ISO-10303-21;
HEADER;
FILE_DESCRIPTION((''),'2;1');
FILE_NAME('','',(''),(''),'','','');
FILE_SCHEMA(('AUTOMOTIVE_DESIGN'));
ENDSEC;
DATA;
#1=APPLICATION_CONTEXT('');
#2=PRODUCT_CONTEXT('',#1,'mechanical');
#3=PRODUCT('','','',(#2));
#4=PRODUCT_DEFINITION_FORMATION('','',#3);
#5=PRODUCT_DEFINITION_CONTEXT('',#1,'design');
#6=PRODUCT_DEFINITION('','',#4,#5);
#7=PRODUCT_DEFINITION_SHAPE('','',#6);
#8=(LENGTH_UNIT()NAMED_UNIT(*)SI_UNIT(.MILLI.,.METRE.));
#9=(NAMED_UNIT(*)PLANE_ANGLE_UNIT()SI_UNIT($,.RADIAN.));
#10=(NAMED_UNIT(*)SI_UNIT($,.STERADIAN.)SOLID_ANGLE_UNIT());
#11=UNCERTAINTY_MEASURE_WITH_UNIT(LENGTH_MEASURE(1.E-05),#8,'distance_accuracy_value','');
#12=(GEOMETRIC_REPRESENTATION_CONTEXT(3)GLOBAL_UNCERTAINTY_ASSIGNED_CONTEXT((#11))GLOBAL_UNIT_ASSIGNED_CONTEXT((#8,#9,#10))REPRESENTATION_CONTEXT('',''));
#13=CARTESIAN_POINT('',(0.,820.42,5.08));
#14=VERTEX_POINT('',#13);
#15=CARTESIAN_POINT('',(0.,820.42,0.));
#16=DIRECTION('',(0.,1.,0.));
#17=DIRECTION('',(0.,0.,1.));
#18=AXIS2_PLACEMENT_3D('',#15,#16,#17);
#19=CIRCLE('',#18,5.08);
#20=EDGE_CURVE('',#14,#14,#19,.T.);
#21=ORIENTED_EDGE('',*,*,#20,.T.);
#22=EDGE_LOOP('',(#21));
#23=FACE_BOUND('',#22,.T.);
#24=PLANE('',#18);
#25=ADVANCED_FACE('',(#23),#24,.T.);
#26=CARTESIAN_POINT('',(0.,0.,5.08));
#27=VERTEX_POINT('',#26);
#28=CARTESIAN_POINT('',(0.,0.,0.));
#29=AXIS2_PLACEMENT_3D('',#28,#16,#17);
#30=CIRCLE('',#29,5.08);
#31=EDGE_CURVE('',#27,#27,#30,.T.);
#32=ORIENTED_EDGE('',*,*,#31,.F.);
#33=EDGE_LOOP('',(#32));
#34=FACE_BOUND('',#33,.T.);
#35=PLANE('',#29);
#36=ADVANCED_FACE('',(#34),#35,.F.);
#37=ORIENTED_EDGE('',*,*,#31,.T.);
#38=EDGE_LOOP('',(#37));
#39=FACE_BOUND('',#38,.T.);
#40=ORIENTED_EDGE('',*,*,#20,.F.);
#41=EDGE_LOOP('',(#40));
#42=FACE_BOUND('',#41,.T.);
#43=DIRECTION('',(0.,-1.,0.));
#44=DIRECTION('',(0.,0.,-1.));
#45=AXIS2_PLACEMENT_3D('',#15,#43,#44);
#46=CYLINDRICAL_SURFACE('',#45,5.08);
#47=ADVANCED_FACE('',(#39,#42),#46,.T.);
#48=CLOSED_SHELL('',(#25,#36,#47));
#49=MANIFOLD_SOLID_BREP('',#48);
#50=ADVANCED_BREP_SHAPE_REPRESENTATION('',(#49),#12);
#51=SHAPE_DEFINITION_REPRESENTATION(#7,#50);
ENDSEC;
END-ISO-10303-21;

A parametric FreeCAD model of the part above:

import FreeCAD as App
import Part
import Sketcher
Q = App.Units.Quantity

doc = App.newDocument("Part")
body = doc.addObject("PartDesign::Body", "Body")

# Sketch on XZ plane
sketch1 = body.newObject("Sketcher::SketchObject", "Sketch")
sketch1.AttachmentSupport = (doc.getObject("XZ_Plane"), [""])
sketch1.MapMode = "FlatFace"
sketch1.addGeometry(Part.Circle(App.Vector(0, 0, 0), App.Vector(0, 0, 1), 5), False)
sketch1.addConstraint([
    Sketcher.Constraint("Coincident", 0, 3, -1, 1),
    Sketcher.Constraint("Diameter", 0, Q("0.4 in")),
])
pad1 = body.newObject("PartDesign::Pad", "Pad")
pad1.Profile = sketch1
pad1.Length = Q("32.3 in")
pad1.Reversed = True

doc.recompute()
